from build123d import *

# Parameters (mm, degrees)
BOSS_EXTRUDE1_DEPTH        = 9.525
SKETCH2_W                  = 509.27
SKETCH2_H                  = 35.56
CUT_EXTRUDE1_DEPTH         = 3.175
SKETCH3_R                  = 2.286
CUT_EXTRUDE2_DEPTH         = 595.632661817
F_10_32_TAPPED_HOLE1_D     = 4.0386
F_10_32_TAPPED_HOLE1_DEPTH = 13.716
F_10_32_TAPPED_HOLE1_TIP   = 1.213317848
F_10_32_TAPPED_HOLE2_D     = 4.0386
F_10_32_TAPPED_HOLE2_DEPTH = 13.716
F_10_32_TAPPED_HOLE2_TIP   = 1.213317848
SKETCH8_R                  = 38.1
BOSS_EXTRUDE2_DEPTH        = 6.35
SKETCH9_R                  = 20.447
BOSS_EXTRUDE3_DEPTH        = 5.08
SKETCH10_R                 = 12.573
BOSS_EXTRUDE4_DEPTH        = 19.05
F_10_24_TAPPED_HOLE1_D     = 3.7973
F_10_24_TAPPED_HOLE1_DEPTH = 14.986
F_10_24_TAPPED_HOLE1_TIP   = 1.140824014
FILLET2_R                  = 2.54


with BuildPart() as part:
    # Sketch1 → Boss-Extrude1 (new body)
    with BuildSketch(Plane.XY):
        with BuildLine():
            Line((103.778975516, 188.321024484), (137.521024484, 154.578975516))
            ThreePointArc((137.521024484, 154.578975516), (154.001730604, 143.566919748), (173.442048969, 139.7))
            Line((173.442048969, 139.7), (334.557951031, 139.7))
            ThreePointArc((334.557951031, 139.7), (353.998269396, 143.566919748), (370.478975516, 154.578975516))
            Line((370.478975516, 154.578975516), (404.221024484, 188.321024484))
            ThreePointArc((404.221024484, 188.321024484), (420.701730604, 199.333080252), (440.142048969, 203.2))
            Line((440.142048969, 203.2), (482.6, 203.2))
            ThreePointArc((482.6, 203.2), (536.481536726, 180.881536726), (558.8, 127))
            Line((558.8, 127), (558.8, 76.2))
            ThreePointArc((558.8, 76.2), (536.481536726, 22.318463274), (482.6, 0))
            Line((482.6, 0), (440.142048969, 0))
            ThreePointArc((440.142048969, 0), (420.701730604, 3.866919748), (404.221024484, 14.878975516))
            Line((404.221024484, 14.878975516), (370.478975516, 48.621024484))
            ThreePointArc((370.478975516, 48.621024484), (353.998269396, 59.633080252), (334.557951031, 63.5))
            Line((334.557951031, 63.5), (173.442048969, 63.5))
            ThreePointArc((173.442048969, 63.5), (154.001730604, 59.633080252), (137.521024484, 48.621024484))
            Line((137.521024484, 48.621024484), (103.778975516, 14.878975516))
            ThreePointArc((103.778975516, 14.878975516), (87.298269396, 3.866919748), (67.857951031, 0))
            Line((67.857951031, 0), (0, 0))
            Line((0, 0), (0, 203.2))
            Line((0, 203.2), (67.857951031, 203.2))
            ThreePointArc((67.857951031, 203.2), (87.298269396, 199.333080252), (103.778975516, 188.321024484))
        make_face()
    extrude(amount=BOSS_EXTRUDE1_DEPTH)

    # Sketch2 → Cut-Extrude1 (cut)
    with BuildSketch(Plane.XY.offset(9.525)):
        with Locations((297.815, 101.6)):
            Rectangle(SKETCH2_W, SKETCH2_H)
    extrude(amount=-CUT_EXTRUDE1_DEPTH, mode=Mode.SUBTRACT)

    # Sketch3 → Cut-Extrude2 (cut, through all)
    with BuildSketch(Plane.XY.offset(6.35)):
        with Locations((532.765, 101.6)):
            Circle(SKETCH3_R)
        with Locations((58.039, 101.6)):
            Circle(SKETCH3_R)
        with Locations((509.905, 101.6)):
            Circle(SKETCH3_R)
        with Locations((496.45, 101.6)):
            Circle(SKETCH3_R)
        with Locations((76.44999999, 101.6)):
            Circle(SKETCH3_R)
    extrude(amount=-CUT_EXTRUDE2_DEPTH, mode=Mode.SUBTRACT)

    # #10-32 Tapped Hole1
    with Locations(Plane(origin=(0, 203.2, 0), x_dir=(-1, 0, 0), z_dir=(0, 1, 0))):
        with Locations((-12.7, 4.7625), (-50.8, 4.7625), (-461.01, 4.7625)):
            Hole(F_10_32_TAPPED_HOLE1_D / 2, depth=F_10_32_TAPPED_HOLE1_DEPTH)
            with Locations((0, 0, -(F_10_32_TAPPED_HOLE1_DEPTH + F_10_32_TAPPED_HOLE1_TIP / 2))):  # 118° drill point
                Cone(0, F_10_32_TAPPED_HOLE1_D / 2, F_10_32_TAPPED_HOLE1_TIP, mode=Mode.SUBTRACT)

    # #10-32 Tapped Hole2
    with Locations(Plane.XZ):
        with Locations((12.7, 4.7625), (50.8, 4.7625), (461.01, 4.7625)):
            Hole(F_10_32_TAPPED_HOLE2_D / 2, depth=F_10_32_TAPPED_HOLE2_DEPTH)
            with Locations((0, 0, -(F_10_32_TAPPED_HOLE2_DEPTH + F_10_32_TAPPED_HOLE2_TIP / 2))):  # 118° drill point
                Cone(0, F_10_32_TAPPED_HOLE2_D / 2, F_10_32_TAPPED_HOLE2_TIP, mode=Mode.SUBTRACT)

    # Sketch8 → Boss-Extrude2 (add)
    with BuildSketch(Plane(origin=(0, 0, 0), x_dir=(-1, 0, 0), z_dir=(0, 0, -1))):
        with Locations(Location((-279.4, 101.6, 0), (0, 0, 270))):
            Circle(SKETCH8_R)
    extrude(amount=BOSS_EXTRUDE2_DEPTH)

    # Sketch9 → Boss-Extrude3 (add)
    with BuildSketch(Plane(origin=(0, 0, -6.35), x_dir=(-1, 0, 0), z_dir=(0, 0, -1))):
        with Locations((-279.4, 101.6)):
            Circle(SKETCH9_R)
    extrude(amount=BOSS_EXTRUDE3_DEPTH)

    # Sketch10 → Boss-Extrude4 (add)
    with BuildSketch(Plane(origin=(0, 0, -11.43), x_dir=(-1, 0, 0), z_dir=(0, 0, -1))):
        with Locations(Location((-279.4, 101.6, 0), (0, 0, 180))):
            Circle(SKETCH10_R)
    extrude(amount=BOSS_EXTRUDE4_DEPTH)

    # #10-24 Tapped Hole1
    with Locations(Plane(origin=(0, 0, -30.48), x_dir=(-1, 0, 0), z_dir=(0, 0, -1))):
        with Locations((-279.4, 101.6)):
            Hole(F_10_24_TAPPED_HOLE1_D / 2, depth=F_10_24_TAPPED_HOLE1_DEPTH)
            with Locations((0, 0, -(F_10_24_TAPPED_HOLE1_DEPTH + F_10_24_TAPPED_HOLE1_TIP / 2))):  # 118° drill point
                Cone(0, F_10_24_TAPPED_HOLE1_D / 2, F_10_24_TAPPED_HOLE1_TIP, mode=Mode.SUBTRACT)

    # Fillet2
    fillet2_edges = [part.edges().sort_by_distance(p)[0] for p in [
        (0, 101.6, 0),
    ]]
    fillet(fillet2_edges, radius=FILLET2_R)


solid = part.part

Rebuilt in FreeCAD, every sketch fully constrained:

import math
import FreeCAD as App
import Part
import Sketcher
Q = App.Units.Quantity


def edges_at(feature, points):
    """Names of the edges that pass closest to the given points."""
    edges = feature.Shape.Edges
    near = lambda p: min(range(len(edges)), key=lambda i: edges[i].distToShape(Part.Vertex(*p))[0])
    return sorted({f"Edge{near(p) + 1}" for p in points})


def add_polygon(sketch, points):
    """Adds a closed chain of lines whose ends are joined by coincident constraints."""
    first, n = sketch.GeometryCount, len(points)
    for a, b in zip(points, points[1:] + points[:1]):
        sketch.addGeometry(Part.LineSegment(App.Vector(*a, 0), App.Vector(*b, 0)), False)
    for i in range(n):
        sketch.addConstraint(Sketcher.Constraint("Coincident", first + i, 2, first + (i + 1) % n, 1))

doc = App.newDocument("Part")
body = doc.addObject("PartDesign::Body", "Body")

sketch1 = body.newObject("Sketcher::SketchObject", "Sketch")
sketch1.AttachmentSupport = (doc.getObject("XY_Plane"), [""])
sketch1.MapMode = "FlatFace"
sketch1.addGeometry(Part.LineSegment(App.Vector(138, 155, 0), App.Vector(104, 188, 0)), False)
sketch1.addGeometry(Part.ArcOfCircle(Part.Circle(App.Vector(68, 152, 0), App.Vector(0, 0, 1), 51), math.radians(45), math.radians(90)), False)
sketch1.addGeometry(Part.LineSegment(App.Vector(68, 203, 0), App.Vector(0, 203, 0)), False)
sketch1.addGeometry(Part.LineSegment(App.Vector(0, 203, 0), App.Vector(0, 0, 0)), False)
sketch1.addGeometry(Part.LineSegment(App.Vector(0, 0, 0), App.Vector(68, 0, 0)), False)
sketch1.addGeometry(Part.ArcOfCircle(Part.Circle(App.Vector(68, 51, 0), App.Vector(0, 0, 1), 51), math.radians(-90), math.radians(-45)), False)
sketch1.addGeometry(Part.LineSegment(App.Vector(104, 15, 0), App.Vector(138, 49, 0)), False)
sketch1.addGeometry(Part.ArcOfCircle(Part.Circle(App.Vector(173, 13, 0), App.Vector(0, 0, 1), 51), math.radians(90), math.radians(135)), False)
sketch1.addGeometry(Part.LineSegment(App.Vector(173, 64, 0), App.Vector(335, 64, 0)), False)
sketch1.addGeometry(Part.ArcOfCircle(Part.Circle(App.Vector(335, 13, 0), App.Vector(0, 0, 1), 51), math.radians(45), math.radians(90)), False)
sketch1.addGeometry(Part.LineSegment(App.Vector(370, 49, 0), App.Vector(404, 15, 0)), False)
sketch1.addGeometry(Part.ArcOfCircle(Part.Circle(App.Vector(440, 51, 0), App.Vector(0, 0, 1), 51), math.radians(-135), math.radians(-90)), False)
sketch1.addGeometry(Part.LineSegment(App.Vector(440, 0, 0), App.Vector(483, 0, 0)), False)
sketch1.addGeometry(Part.ArcOfCircle(Part.Circle(App.Vector(483, 76, 0), App.Vector(0, 0, 1), 76), math.radians(-90), math.radians(0)), False)
sketch1.addGeometry(Part.LineSegment(App.Vector(559, 76, 0), App.Vector(559, 127, 0)), False)
sketch1.addGeometry(Part.ArcOfCircle(Part.Circle(App.Vector(483, 127, 0), App.Vector(0, 0, 1), 76), math.radians(0), math.radians(90)), False)
sketch1.addGeometry(Part.LineSegment(App.Vector(483, 203, 0), App.Vector(440, 203, 0)), False)
sketch1.addGeometry(Part.ArcOfCircle(Part.Circle(App.Vector(440, 152, 0), App.Vector(0, 0, 1), 51), math.radians(90), math.radians(135)), False)
sketch1.addGeometry(Part.LineSegment(App.Vector(404, 188, 0), App.Vector(370, 155, 0)), False)
sketch1.addGeometry(Part.ArcOfCircle(Part.Circle(App.Vector(335, 190, 0), App.Vector(0, 0, 1), 51), math.radians(-90), math.radians(-45)), False)
sketch1.addGeometry(Part.LineSegment(App.Vector(335, 140, 0), App.Vector(173, 140, 0)), False)
sketch1.addGeometry(Part.ArcOfCircle(Part.Circle(App.Vector(173, 190, 0), App.Vector(0, 0, 1), 51), math.radians(-135), math.radians(-90)), False)
sketch1.addConstraint(Sketcher.Constraint("Tangent", 0, 2, 1, 1))
sketch1.addConstraint(Sketcher.Constraint("Tangent", 1, 2, 2, 1))
sketch1.addConstraint(Sketcher.Constraint("Coincident", 2, 2, 3, 1))
sketch1.addConstraint(Sketcher.Constraint("Coincident", 3, 2, 4, 1))
sketch1.addConstraint(Sketcher.Constraint("Tangent", 4, 2, 5, 1))
sketch1.addConstraint(Sketcher.Constraint("Tangent", 5, 2, 6, 1))
sketch1.addConstraint(Sketcher.Constraint("Tangent", 6, 2, 7, 2))
sketch1.addConstraint(Sketcher.Constraint("Tangent", 7, 1, 8, 1))
sketch1.addConstraint(Sketcher.Constraint("Tangent", 8, 2, 9, 2))
sketch1.addConstraint(Sketcher.Constraint("Tangent", 9, 1, 10, 1))
sketch1.addConstraint(Sketcher.Constraint("Tangent", 10, 2, 11, 1))
sketch1.addConstraint(Sketcher.Constraint("Tangent", 11, 2, 12, 1))
sketch1.addConstraint(Sketcher.Constraint("Tangent", 12, 2, 13, 1))
sketch1.addConstraint(Sketcher.Constraint("Tangent", 13, 2, 14, 1))
sketch1.addConstraint(Sketcher.Constraint("Tangent", 14, 2, 15, 1))
sketch1.addConstraint(Sketcher.Constraint("Tangent", 15, 2, 16, 1))
sketch1.addConstraint(Sketcher.Constraint("Tangent", 16, 2, 17, 1))
sketch1.addConstraint(Sketcher.Constraint("Tangent", 17, 2, 18, 1))
sketch1.addConstraint(Sketcher.Constraint("Tangent", 18, 2, 19, 2))
sketch1.addConstraint(Sketcher.Constraint("Tangent", 19, 1, 20, 1))
sketch1.addConstraint(Sketcher.Constraint("Tangent", 20, 2, 21, 2))
sketch1.addConstraint(Sketcher.Constraint("Tangent", 21, 1, 0, 1))
sketch1.addConstraint(Sketcher.Constraint("Horizontal", 2))
sketch1.addConstraint(Sketcher.Constraint("Vertical", 3))
sketch1.addConstraint(Sketcher.Constraint("Horizontal", 4))
sketch1.addConstraint(Sketcher.Constraint("Horizontal", 8))
sketch1.addConstraint(Sketcher.Constraint("Horizontal", 12))
sketch1.addConstraint(Sketcher.Constraint("Vertical", 14))
sketch1.addConstraint(Sketcher.Constraint("Horizontal", 16))
sketch1.addConstraint(Sketcher.Constraint("Horizontal", 20))
sketch1.addConstraint(Sketcher.Constraint("Coincident", 3, 2, -1, 1))
sketch1.addConstraint(Sketcher.Constraint("Equal", 1, 5))
sketch1.addConstraint(Sketcher.Constraint("Equal", 5, 7))
sketch1.addConstraint(Sketcher.Constraint("Equal", 7, 9))
sketch1.addConstraint(Sketcher.Constraint("Equal", 9, 11))
sketch1.addConstraint(Sketcher.Constraint("Equal", 13, 15))
sketch1.addConstraint(Sketcher.Constraint("Equal", 11, 17))
sketch1.addConstraint(Sketcher.Constraint("Equal", 17, 19))
sketch1.addConstraint(Sketcher.Constraint("Equal", 19, 21))
sketch1.addConstraint(Sketcher.Constraint("PointOnObject", 11, 2, -1))
sketch1.addConstraint(Sketcher.Constraint("Perpendicular", 0, 6))
sketch1.addConstraint(Sketcher.Constraint("Perpendicular", 6, 10))
sketch1.addConstraint(Sketcher.Constraint("Perpendicular", 10, 18))
sketch1.addConstraint(Sketcher.Constraint("Horizontal", 1, 3, 17, 3))
sketch1.addConstraint(Sketcher.Constraint("Horizontal", 6, 2, 9, 1))
sketch1.addConstraint(Sketcher.Constraint("Vertical", 1, 3, 5, 3))
sketch1.addConstraint(Sketcher.Constraint("Vertical", 11, 3, 17, 3))
sketch1.addConstraint(Sketcher.Constraint("Vertical", 9, 3, 19, 3))
sketch1.addConstraint(Sketcher.Constraint("Radius", 1, Q("2 in")))
sketch1.addConstraint(Sketcher.Constraint("Radius", 13, Q("3 in")))
sketch1.addConstraint(Sketcher.Constraint("DistanceY", 3, 2, 3, 1, Q("8 in")))
sketch1.addConstraint(Sketcher.Constraint("DistanceX", -1, 1, 13, 3, Q("19 in")))
sketch1.addConstraint(Sketcher.Constraint("DistanceY", 9, 3, 19, 3, Q("7 in")))
sketch1.addConstraint(Sketcher.Constraint("DistanceX", 5, 3, 9, 3, Q("10.5 in")))
sketch1.addConstraint(Sketcher.Constraint("DistanceX", 2, 2, 2, 1, 67.857951))
pad1 = body.newObject("PartDesign::Pad", "Pad")
pad1.Profile = sketch1
pad1.Length = Q("0.375 in")

sketch2 = body.newObject("Sketcher::SketchObject", "Sketch001")
sketch2.AttachmentSupport = (doc.getObject("XY_Plane"), [""])
sketch2.MapMode = "FlatFace"
sketch2.AttachmentOffset = App.Placement(App.Vector(0, 0, 0.375 * 25.4), App.Rotation())
add_polygon(sketch2, [(43, 119), (43, 84), (552, 84), (552, 119)])
sketch2.addConstraint(Sketcher.Constraint("Vertical", 0))
sketch2.addConstraint(Sketcher.Constraint("Horizontal", 1))
sketch2.addConstraint(Sketcher.Constraint("Vertical", 2))
sketch2.addConstraint(Sketcher.Constraint("Horizontal", 3))
sketch2.addConstraint(Sketcher.Constraint("DistanceY", 0, 2, 0, 1, Q("1.4 in")))
sketch2.addConstraint(Sketcher.Constraint("DistanceX", 1, 1, 1, 2, Q("20.05 in")))
sketch2.addConstraint(Sketcher.Constraint("DistanceX", -1, 1, 0, 2, Q("1.7 in")))
sketch2.addConstraint(Sketcher.Constraint("DistanceY", -1, 1, 0, 2, Q("3.3 in")))
pocket1 = body.newObject("PartDesign::Pocket", "Pocket")
pocket1.Profile = sketch2
pocket1.Length = Q("0.125 in")

sketch3 = body.newObject("Sketcher::SketchObject", "Sketch002")
sketch3.AttachmentSupport = (doc.getObject("XY_Plane"), [""])
sketch3.MapMode = "FlatFace"
sketch3.AttachmentOffset = App.Placement(App.Vector(0, 0, 0.25 * 25.4), App.Rotation())
sketch3.addGeometry(Part.Circle(App.Vector(532.8, 101.6, 0), App.Vector(0, 0, 1), 2.3), False)
sketch3.addGeometry(Part.Circle(App.Vector(58, 101.6, 0), App.Vector(0, 0, 1), 2.3), False)
sketch3.addGeometry(Part.Circle(App.Vector(509.9, 101.6, 0), App.Vector(0, 0, 1), 2.3), False)
sketch3.addGeometry(Part.Circle(App.Vector(496.4, 101.6, 0), App.Vector(0, 0, 1), 2.3), False)
sketch3.addGeometry(Part.Circle(App.Vector(76.4, 101.6, 0), App.Vector(0, 0, 1), 2.3), False)
sketch3.addConstraint(Sketcher.Constraint("Equal", 0, 1))
sketch3.addConstraint(Sketcher.Constraint("Equal", 1, 2))
sketch3.addConstraint(Sketcher.Constraint("Equal", 2, 3))
sketch3.addConstraint(Sketcher.Constraint("Equal", 3, 4))
sketch3.addConstraint(Sketcher.Constraint("Horizontal", 0, 3, 1, 3))
sketch3.addConstraint(Sketcher.Constraint("Horizontal", 1, 3, 2, 3))
sketch3.addConstraint(Sketcher.Constraint("Horizontal", 2, 3, 3, 3))
sketch3.addConstraint(Sketcher.Constraint("Horizontal", 3, 3, 4, 3))
sketch3.addConstraint(Sketcher.Constraint("Diameter", 0, Q("0.18 in")))
sketch3.addConstraint(Sketcher.Constraint("DistanceY", -1, 1, 0, 3, Q("4 in")))
sketch3.addConstraint(Sketcher.Constraint("DistanceX", 2, 3, 0, 3, Q("0.9 in")))
sketch3.addConstraint(Sketcher.Constraint("DistanceX", 1, 3, 0, 3, Q("18.69 in")))
sketch3.addConstraint(Sketcher.Constraint("DistanceX", -1, 1, 0, 3, Q("20.975 in")))
sketch3.addConstraint(Sketcher.Constraint("DistanceX", -1, 1, 3, 3, 496.45))
sketch3.addConstraint(Sketcher.Constraint("DistanceX", -1, 1, 4, 3, 76.45))
pocket2 = body.newObject("PartDesign::Pocket", "Pocket001")
pocket2.Profile = sketch3
pocket2.Type = "ThroughAll"

sketch4 = body.newObject("Sketcher::SketchObject", "Sketch003")
sketch4.AttachmentSupport = (doc.getObject("XZ_Plane"), [""])
sketch4.MapMode = "FlatFace"
sketch4.AttachmentOffset = App.Placement(App.Vector(0, 0, -8 * 25.4), App.Rotation())
sketch4.addGeometry(Part.Circle(App.Vector(12.7, 4.8, 0), App.Vector(0, 0, 1), 2), False)
sketch4.addGeometry(Part.Circle(App.Vector(50.8, 4.8, 0), App.Vector(0, 0, 1), 2), False)
sketch4.addGeometry(Part.Circle(App.Vector(461, 4.8, 0), App.Vector(0, 0, 1), 2), False)
sketch4.addConstraint(Sketcher.Constraint("Equal", 0, 1))
sketch4.addConstraint(Sketcher.Constraint("Equal", 1, 2))
sketch4.addConstraint(Sketcher.Constraint("Horizontal", 0, 3, 1, 3))
sketch4.addConstraint(Sketcher.Constraint("Horizontal", 1, 3, 2, 3))
sketch4.addConstraint(Sketcher.Constraint("Diameter", 0, Q("0.159 in")))
sketch4.addConstraint(Sketcher.Constraint("DistanceX", -1, 1, 1, 3, Q("2 in")))
sketch4.addConstraint(Sketcher.Constraint("DistanceX", -1, 1, 0, 3, Q("0.5 in")))
sketch4.addConstraint(Sketcher.Constraint("DistanceX", -1, 1, 2, 3, Q("18.15 in")))
sketch4.addConstraint(Sketcher.Constraint("DistanceY", -1, 1, 0, 3, Q("0.1875 in")))
doc.recompute()
hole = body.newObject("PartDesign::Hole", "Hole")
hole.Profile = sketch4
hole.ThreadType = "None"
hole.Diameter = Q("0.159 in")
hole.DepthType = "Dimension"
hole.Depth = Q("0.54 in")
hole.DrillPoint = "Angled"
hole.DrillPointAngle = 118
hole.Reversed = True

sketch5 = body.newObject("Sketcher::SketchObject", "Sketch004")
sketch5.AttachmentSupport = (doc.getObject("XZ_Plane"), [""])
sketch5.MapMode = "FlatFace"
sketch5.addGeometry(Part.Circle(App.Vector(12.7, 4.8, 0), App.Vector(0, 0, 1), 2), False)
sketch5.addGeometry(Part.Circle(App.Vector(50.8, 4.8, 0), App.Vector(0, 0, 1), 2), False)
sketch5.addGeometry(Part.Circle(App.Vector(461, 4.8, 0), App.Vector(0, 0, 1), 2), False)
sketch5.addConstraint(Sketcher.Constraint("Equal", 0, 1))
sketch5.addConstraint(Sketcher.Constraint("Equal", 1, 2))
sketch5.addConstraint(Sketcher.Constraint("Horizontal", 0, 3, 1, 3))
sketch5.addConstraint(Sketcher.Constraint("Horizontal", 1, 3, 2, 3))
sketch5.addConstraint(Sketcher.Constraint("Diameter", 0, Q("0.159 in")))
sketch5.addConstraint(Sketcher.Constraint("DistanceX", -1, 1, 1, 3, Q("2 in")))
sketch5.addConstraint(Sketcher.Constraint("DistanceX", -1, 1, 0, 3, Q("0.5 in")))
sketch5.addConstraint(Sketcher.Constraint("DistanceX", -1, 1, 2, 3, Q("18.15 in")))
sketch5.addConstraint(Sketcher.Constraint("DistanceY", -1, 1, 0, 3, Q("0.1875 in")))
doc.recompute()
hole2 = body.newObject("PartDesign::Hole", "Hole001")
hole2.Profile = sketch5
hole2.ThreadType = "None"
hole2.Diameter = Q("0.159 in")
hole2.DepthType = "Dimension"
hole2.Depth = Q("0.54 in")
hole2.DrillPoint = "Angled"
hole2.DrillPointAngle = 118

sketch6 = body.newObject("Sketcher::SketchObject", "Sketch005")
sketch6.AttachmentSupport = (doc.getObject("XY_Plane"), [""])
sketch6.MapMode = "FlatFace"
sketch6.addGeometry(Part.Circle(App.Vector(279, 102, 0), App.Vector(0, 0, 1), 38), False)
sketch6.addConstraint(Sketcher.Constraint("Diameter", 0, Q("3 in")))
sketch6.addConstraint(Sketcher.Constraint("DistanceX", -1, 1, 0, 3, Q("11 in")))
sketch6.addConstraint(Sketcher.Constraint("DistanceY", -1, 1, 0, 3, Q("4 in")))
pad2 = body.newObject("PartDesign::Pad", "Pad001")
pad2.Profile = sketch6
pad2.Length = Q("0.25 in")
pad2.Reversed = True

sketch7 = body.newObject("Sketcher::SketchObject", "Sketch006")
sketch7.AttachmentSupport = (doc.getObject("XY_Plane"), [""])
sketch7.MapMode = "FlatFace"
sketch7.AttachmentOffset = App.Placement(App.Vector(0, 0, -0.25 * 25.4), App.Rotation())
sketch7.addGeometry(Part.Circle(App.Vector(279, 102, 0), App.Vector(0, 0, 1), 20), False)
sketch7.addConstraint(Sketcher.Constraint("Diameter", 0, Q("1.61 in")))
sketch7.addConstraint(Sketcher.Constraint("DistanceX", -1, 1, 0, 3, Q("11 in")))
sketch7.addConstraint(Sketcher.Constraint("DistanceY", -1, 1, 0, 3, Q("4 in")))
pad3 = body.newObject("PartDesign::Pad", "Pad002")
pad3.Profile = sketch7
pad3.Length = Q("0.2 in")
pad3.Reversed = True

sketch8 = body.newObject("Sketcher::SketchObject", "Sketch007")
sketch8.AttachmentSupport = (doc.getObject("XY_Plane"), [""])
sketch8.MapMode = "FlatFace"
sketch8.AttachmentOffset = App.Placement(App.Vector(0, 0, -0.45 * 25.4), App.Rotation())
sketch8.addGeometry(Part.Circle(App.Vector(279, 102, 0), App.Vector(0, 0, 1), 13), False)
sketch8.addConstraint(Sketcher.Constraint("Diameter", 0, Q("0.99 in")))
sketch8.addConstraint(Sketcher.Constraint("DistanceX", -1, 1, 0, 3, Q("11 in")))
sketch8.addConstraint(Sketcher.Constraint("DistanceY", -1, 1, 0, 3, Q("4 in")))
pad4 = body.newObject("PartDesign::Pad", "Pad003")
pad4.Profile = sketch8
pad4.Length = Q("0.75 in")
pad4.Reversed = True

sketch9 = body.newObject("Sketcher::SketchObject", "Sketch008")
sketch9.AttachmentSupport = (doc.getObject("XY_Plane"), [""])
sketch9.MapMode = "FlatFace"
sketch9.AttachmentOffset = App.Placement(App.Vector(0, 0, -1.2 * 25.4), App.Rotation())
sketch9.addGeometry(Part.Circle(App.Vector(279.4, 101.6, 0), App.Vector(0, 0, 1), 1.9), False)
sketch9.addConstraint(Sketcher.Constraint("DistanceX", -1, 1, 0, 3, Q("11 in")))
sketch9.addConstraint(Sketcher.Constraint("DistanceY", -1, 1, 0, 3, Q("4 in")))
sketch9.addConstraint(Sketcher.Constraint("Diameter", 0, Q("0.1495 in")))
doc.recompute()
hole3 = body.newObject("PartDesign::Hole", "Hole002")
hole3.Profile = sketch9
hole3.ThreadType = "None"
hole3.Diameter = Q("0.1495 in")
hole3.DepthType = "Dimension"
hole3.Depth = Q("0.59 in")
hole3.DrillPoint = "Angled"
hole3.DrillPointAngle = 118
hole3.Reversed = True
doc.recompute()

fillet = body.newObject("PartDesign::Fillet", "Fillet")
fillet.Base = (hole3, edges_at(hole3, [(0, 101.6, 0)]))
fillet.Radius = Q("0.1 in")

doc.recompute()
